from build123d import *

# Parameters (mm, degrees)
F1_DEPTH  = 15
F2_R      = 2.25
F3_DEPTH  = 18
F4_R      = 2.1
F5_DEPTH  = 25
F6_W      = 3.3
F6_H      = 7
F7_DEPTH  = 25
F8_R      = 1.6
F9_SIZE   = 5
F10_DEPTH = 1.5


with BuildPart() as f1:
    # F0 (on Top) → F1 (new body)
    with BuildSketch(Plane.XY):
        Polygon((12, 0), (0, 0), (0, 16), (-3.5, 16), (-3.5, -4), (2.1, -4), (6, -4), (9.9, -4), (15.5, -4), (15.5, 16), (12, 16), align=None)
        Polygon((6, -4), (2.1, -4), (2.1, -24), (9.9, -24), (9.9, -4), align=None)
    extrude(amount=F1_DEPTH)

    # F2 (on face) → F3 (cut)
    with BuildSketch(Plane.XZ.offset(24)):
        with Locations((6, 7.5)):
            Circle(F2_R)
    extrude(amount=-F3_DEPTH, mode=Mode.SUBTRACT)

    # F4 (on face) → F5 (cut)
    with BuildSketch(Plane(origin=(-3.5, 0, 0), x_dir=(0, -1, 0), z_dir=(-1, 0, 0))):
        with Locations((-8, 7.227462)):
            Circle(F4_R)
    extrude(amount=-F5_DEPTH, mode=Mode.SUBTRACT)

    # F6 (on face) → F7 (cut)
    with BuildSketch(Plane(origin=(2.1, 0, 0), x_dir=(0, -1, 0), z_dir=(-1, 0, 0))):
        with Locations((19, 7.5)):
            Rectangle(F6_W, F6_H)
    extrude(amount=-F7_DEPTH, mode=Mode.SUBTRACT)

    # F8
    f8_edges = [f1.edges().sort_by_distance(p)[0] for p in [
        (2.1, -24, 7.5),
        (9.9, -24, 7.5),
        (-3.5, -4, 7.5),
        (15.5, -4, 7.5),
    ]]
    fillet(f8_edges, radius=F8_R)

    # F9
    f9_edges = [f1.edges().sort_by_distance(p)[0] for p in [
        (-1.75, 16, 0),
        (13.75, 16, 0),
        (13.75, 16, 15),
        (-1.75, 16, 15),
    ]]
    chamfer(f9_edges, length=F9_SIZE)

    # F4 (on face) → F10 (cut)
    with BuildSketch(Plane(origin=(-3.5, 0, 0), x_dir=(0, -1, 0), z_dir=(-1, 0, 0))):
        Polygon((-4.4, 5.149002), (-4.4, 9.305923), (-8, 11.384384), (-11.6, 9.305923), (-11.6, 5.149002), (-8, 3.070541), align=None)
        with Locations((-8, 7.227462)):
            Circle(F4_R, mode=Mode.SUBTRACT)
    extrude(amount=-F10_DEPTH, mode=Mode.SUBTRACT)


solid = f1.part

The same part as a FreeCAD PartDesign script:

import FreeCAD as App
import Part
import Sketcher
from FreeCAD import Vector
Q = App.Units.Quantity


def edges_at(feature, points):
    """Names of the edges that pass closest to the given points."""
    edges = feature.Shape.Edges
    near = lambda p: min(range(len(edges)), key=lambda i: edges[i].distToShape(Part.Vertex(*p))[0])
    return sorted({f"Edge{near(p) + 1}" for p in points})


def add_polygon(sketch, points):
    """Adds a closed chain of lines whose ends are joined by coincident constraints."""
    first, n = sketch.GeometryCount, len(points)
    for a, b in zip(points, points[1:] + points[:1]):
        sketch.addGeometry(Part.LineSegment(App.Vector(*a, 0), App.Vector(*b, 0)), False)
    for i in range(n):
        sketch.addConstraint(Sketcher.Constraint("Coincident", first + i, 2, first + (i + 1) % n, 1))

doc = App.newDocument("Part")
body = doc.addObject("PartDesign::Body", "Body")

# Sketch on XY plane
sketch1 = body.newObject("Sketcher::SketchObject", "Sketch")
sketch1.AttachmentSupport = (doc.getObject("XY_Plane"), [""])
sketch1.MapMode = "FlatFace"
add_polygon(sketch1, [(12, 0), (0, 0), (0, 16), (-3.5, 16), (-3.5, -4), (2.1, -4), (2.1, -24), (9.9, -24), (9.9, -4), (15.5, -4), (15.5, 16), (12, 16)])  # lines 0-11
sketch1.addConstraint([
    Sketcher.Constraint("Horizontal", 0),
    Sketcher.Constraint("Vertical", 1),
    Sketcher.Constraint("Horizontal", 2),
    Sketcher.Constraint("Vertical", 3),
    Sketcher.Constraint("Horizontal", 4),
    Sketcher.Constraint("Vertical", 5),
    Sketcher.Constraint("Horizontal", 6),
    Sketcher.Constraint("Vertical", 7),
    Sketcher.Constraint("Horizontal", 8),
    Sketcher.Constraint("Vertical", 9),
    Sketcher.Constraint("Horizontal", 10),
    Sketcher.Constraint("Vertical", 11),
    Sketcher.Constraint("Coincident", 0, 2, -1, 1),
    Sketcher.Constraint("Horizontal", 4, 2, 7, 2),
    Sketcher.Constraint("Horizontal", 2, 2, 9, 2),
    Sketcher.Constraint("Equal", 4, 8),
    Sketcher.Constraint("Equal", 2, 10),
    Sketcher.Constraint("Equal", 3, 5),
    Sketcher.Constraint("DistanceX", 0, 2, 0, 1, Q("12 mm")),
    Sketcher.Constraint("DistanceY", 1, 1, 1, 2, Q("16 mm")),
    Sketcher.Constraint("DistanceY", 3, 2, 3, 1, Q("20 mm")),
    Sketcher.Constraint("DistanceX", 2, 2, 2, 1, Q("3.5 mm")),
    Sketcher.Constraint("DistanceX", 4, 1, 4, 2, Q("5.6 mm")),
])
pad1 = body.newObject("PartDesign::Pad", "Pad")
pad1.Profile = sketch1
pad1.Length = 15

# Sketch on XZ plane
sketch2 = body.newObject("Sketcher::SketchObject", "Sketch001")
sketch2.AttachmentSupport = (doc.getObject("XZ_Plane"), [""])
sketch2.MapMode = "FlatFace"
sketch2.AttachmentOffset = App.Placement(Vector(0, 0, 24), App.Rotation())
sketch2.addGeometry(Part.Circle(Vector(6, 7.5, 0), Vector(0, 0, 1), 2.2), False)
sketch2.addConstraint([
    Sketcher.Constraint("Diameter", 0, Q("4.5 mm")),
    Sketcher.Constraint("DistanceX", -1, 1, 0, 3, Q("6 mm")),
    Sketcher.Constraint("DistanceY", -1, 1, 0, 3, Q("7.5 mm")),
])
pocket1 = body.newObject("PartDesign::Pocket", "Pocket")
pocket1.Profile = sketch2
pocket1.Length = 18

# Sketch on YZ plane
sketch3 = body.newObject("Sketcher::SketchObject", "Sketch002")
sketch3.AttachmentSupport = (doc.getObject("YZ_Plane"), [""])
sketch3.MapMode = "FlatFace"
sketch3.AttachmentOffset = App.Placement(Vector(0, 0, -3.5), App.Rotation())
sketch3.addGeometry(Part.Circle(Vector(8, 7.2, 0), Vector(0, 0, 1), 2.1), False)
sketch3.addConstraint([
    Sketcher.Constraint("Diameter", 0, Q("4.2 mm")),
    Sketcher.Constraint("DistanceX", -1, 1, 0, 3, Q("8 mm")),
    Sketcher.Constraint("DistanceY", -1, 1, 0, 3, Q("7.227462 mm")),
])
pocket2 = body.newObject("PartDesign::Pocket", "Pocket001")
pocket2.Profile = sketch3
pocket2.Length = 25
pocket2.Reversed = True

# Sketch on YZ plane
sketch4 = body.newObject("Sketcher::SketchObject", "Sketch003")
sketch4.AttachmentSupport = (doc.getObject("YZ_Plane"), [""])
sketch4.MapMode = "FlatFace"
sketch4.AttachmentOffset = App.Placement(Vector(0, 0, 2.1), App.Rotation())
add_polygon(sketch4, [(-17.4, 11), (-17.4, 4), (-20.6, 4), (-20.6, 11)])  # lines 0-3
sketch4.addConstraint([
    Sketcher.Constraint("Vertical", 0),
    Sketcher.Constraint("Horizontal", 1),
    Sketcher.Constraint("Vertical", 2),
    Sketcher.Constraint("Horizontal", 3),
    Sketcher.Constraint("DistanceY", 0, 2, 0, 1, Q("7 mm")),
    Sketcher.Constraint("DistanceX", 1, 2, 1, 1, Q("3.3 mm")),
    Sketcher.Constraint("DistanceY", -1, 1, 0, 2, Q("4 mm")),
    Sketcher.Constraint("DistanceX", 0, 2, -1, 1, Q("17.35 mm")),
])
pocket3 = body.newObject("PartDesign::Pocket", "Pocket002")
pocket3.Profile = sketch4
pocket3.Length = 25
pocket3.Reversed = True
doc.recompute()

fillet = body.newObject("PartDesign::Fillet", "Fillet")
fillet.Base = (pocket3, edges_at(pocket3, [
    (2.1, -24, 7.5),
    (9.9, -24, 7.5),
    (-3.5, -4, 7.5),
    (15.5, -4, 7.5),
]))
fillet.Radius = 1.6
doc.recompute()

chamfer = body.newObject("PartDesign::Chamfer", "Chamfer")
chamfer.Base = (fillet, edges_at(fillet, [
    (-1.75, 16, 0),
    (13.75, 16, 0),
    (13.75, 16, 15),
    (-1.75, 16, 15),
]))
chamfer.Size = 5

# Sketch on YZ plane
sketch5 = body.newObject("Sketcher::SketchObject", "Sketch004")
sketch5.AttachmentSupport = (doc.getObject("YZ_Plane"), [""])
sketch5.MapMode = "FlatFace"
sketch5.AttachmentOffset = App.Placement(Vector(0, 0, -3.5), App.Rotation())
add_polygon(sketch5, [(4.4, 5.1), (4.4, 9.3), (8, 11.4), (11.6, 9.3), (11.6, 5.1), (8, 3.1)])  # lines 0-5
sketch5.addGeometry(Part.Circle(Vector(8, 7.2, 0), Vector(0, 0, 1), 2.1), False)  # 6
sketch5.addConstraint([
    Sketcher.Constraint("Vertical", 0),
    Sketcher.Constraint("Vertical", 3),
    Sketcher.Constraint("Parallel", 1, 4),
    Sketcher.Constraint("Parallel", 2, 5),
    Sketcher.Constraint("Horizontal", 0, 2, 2, 2),
    Sketcher.Constraint("Horizontal", 3, 2, 5, 2),
    Sketcher.Constraint("Vertical", 6, 3, 1, 2),
    Sketcher.Constraint("Vertical", 1, 2, 4, 2),
    Sketcher.Constraint("Diameter", 6, Q("4.2 mm")),
    Sketcher.Constraint("Angle", 1, Q("30 deg")),
    Sketcher.Constraint("DistanceX", -1, 1, 6, 3, Q("8 mm")),
    Sketcher.Constraint("DistanceX", -1, 1, 0, 2, Q("4.4 mm")),
    Sketcher.Constraint("DistanceY", 0, 1, 0, 2, Q("4.156921 mm")),
    Sketcher.Constraint("DistanceY", -1, 1, 4, 2, Q("3.070541 mm")),
    Sketcher.Constraint("DistanceY", 6, 3, 0, 2, Q("2.078461 mm")),
])
pocket4 = body.newObject("PartDesign::Pocket", "Pocket003")
pocket4.Profile = sketch5
pocket4.Length = 1.5
pocket4.Reversed = True

doc.recompute()
